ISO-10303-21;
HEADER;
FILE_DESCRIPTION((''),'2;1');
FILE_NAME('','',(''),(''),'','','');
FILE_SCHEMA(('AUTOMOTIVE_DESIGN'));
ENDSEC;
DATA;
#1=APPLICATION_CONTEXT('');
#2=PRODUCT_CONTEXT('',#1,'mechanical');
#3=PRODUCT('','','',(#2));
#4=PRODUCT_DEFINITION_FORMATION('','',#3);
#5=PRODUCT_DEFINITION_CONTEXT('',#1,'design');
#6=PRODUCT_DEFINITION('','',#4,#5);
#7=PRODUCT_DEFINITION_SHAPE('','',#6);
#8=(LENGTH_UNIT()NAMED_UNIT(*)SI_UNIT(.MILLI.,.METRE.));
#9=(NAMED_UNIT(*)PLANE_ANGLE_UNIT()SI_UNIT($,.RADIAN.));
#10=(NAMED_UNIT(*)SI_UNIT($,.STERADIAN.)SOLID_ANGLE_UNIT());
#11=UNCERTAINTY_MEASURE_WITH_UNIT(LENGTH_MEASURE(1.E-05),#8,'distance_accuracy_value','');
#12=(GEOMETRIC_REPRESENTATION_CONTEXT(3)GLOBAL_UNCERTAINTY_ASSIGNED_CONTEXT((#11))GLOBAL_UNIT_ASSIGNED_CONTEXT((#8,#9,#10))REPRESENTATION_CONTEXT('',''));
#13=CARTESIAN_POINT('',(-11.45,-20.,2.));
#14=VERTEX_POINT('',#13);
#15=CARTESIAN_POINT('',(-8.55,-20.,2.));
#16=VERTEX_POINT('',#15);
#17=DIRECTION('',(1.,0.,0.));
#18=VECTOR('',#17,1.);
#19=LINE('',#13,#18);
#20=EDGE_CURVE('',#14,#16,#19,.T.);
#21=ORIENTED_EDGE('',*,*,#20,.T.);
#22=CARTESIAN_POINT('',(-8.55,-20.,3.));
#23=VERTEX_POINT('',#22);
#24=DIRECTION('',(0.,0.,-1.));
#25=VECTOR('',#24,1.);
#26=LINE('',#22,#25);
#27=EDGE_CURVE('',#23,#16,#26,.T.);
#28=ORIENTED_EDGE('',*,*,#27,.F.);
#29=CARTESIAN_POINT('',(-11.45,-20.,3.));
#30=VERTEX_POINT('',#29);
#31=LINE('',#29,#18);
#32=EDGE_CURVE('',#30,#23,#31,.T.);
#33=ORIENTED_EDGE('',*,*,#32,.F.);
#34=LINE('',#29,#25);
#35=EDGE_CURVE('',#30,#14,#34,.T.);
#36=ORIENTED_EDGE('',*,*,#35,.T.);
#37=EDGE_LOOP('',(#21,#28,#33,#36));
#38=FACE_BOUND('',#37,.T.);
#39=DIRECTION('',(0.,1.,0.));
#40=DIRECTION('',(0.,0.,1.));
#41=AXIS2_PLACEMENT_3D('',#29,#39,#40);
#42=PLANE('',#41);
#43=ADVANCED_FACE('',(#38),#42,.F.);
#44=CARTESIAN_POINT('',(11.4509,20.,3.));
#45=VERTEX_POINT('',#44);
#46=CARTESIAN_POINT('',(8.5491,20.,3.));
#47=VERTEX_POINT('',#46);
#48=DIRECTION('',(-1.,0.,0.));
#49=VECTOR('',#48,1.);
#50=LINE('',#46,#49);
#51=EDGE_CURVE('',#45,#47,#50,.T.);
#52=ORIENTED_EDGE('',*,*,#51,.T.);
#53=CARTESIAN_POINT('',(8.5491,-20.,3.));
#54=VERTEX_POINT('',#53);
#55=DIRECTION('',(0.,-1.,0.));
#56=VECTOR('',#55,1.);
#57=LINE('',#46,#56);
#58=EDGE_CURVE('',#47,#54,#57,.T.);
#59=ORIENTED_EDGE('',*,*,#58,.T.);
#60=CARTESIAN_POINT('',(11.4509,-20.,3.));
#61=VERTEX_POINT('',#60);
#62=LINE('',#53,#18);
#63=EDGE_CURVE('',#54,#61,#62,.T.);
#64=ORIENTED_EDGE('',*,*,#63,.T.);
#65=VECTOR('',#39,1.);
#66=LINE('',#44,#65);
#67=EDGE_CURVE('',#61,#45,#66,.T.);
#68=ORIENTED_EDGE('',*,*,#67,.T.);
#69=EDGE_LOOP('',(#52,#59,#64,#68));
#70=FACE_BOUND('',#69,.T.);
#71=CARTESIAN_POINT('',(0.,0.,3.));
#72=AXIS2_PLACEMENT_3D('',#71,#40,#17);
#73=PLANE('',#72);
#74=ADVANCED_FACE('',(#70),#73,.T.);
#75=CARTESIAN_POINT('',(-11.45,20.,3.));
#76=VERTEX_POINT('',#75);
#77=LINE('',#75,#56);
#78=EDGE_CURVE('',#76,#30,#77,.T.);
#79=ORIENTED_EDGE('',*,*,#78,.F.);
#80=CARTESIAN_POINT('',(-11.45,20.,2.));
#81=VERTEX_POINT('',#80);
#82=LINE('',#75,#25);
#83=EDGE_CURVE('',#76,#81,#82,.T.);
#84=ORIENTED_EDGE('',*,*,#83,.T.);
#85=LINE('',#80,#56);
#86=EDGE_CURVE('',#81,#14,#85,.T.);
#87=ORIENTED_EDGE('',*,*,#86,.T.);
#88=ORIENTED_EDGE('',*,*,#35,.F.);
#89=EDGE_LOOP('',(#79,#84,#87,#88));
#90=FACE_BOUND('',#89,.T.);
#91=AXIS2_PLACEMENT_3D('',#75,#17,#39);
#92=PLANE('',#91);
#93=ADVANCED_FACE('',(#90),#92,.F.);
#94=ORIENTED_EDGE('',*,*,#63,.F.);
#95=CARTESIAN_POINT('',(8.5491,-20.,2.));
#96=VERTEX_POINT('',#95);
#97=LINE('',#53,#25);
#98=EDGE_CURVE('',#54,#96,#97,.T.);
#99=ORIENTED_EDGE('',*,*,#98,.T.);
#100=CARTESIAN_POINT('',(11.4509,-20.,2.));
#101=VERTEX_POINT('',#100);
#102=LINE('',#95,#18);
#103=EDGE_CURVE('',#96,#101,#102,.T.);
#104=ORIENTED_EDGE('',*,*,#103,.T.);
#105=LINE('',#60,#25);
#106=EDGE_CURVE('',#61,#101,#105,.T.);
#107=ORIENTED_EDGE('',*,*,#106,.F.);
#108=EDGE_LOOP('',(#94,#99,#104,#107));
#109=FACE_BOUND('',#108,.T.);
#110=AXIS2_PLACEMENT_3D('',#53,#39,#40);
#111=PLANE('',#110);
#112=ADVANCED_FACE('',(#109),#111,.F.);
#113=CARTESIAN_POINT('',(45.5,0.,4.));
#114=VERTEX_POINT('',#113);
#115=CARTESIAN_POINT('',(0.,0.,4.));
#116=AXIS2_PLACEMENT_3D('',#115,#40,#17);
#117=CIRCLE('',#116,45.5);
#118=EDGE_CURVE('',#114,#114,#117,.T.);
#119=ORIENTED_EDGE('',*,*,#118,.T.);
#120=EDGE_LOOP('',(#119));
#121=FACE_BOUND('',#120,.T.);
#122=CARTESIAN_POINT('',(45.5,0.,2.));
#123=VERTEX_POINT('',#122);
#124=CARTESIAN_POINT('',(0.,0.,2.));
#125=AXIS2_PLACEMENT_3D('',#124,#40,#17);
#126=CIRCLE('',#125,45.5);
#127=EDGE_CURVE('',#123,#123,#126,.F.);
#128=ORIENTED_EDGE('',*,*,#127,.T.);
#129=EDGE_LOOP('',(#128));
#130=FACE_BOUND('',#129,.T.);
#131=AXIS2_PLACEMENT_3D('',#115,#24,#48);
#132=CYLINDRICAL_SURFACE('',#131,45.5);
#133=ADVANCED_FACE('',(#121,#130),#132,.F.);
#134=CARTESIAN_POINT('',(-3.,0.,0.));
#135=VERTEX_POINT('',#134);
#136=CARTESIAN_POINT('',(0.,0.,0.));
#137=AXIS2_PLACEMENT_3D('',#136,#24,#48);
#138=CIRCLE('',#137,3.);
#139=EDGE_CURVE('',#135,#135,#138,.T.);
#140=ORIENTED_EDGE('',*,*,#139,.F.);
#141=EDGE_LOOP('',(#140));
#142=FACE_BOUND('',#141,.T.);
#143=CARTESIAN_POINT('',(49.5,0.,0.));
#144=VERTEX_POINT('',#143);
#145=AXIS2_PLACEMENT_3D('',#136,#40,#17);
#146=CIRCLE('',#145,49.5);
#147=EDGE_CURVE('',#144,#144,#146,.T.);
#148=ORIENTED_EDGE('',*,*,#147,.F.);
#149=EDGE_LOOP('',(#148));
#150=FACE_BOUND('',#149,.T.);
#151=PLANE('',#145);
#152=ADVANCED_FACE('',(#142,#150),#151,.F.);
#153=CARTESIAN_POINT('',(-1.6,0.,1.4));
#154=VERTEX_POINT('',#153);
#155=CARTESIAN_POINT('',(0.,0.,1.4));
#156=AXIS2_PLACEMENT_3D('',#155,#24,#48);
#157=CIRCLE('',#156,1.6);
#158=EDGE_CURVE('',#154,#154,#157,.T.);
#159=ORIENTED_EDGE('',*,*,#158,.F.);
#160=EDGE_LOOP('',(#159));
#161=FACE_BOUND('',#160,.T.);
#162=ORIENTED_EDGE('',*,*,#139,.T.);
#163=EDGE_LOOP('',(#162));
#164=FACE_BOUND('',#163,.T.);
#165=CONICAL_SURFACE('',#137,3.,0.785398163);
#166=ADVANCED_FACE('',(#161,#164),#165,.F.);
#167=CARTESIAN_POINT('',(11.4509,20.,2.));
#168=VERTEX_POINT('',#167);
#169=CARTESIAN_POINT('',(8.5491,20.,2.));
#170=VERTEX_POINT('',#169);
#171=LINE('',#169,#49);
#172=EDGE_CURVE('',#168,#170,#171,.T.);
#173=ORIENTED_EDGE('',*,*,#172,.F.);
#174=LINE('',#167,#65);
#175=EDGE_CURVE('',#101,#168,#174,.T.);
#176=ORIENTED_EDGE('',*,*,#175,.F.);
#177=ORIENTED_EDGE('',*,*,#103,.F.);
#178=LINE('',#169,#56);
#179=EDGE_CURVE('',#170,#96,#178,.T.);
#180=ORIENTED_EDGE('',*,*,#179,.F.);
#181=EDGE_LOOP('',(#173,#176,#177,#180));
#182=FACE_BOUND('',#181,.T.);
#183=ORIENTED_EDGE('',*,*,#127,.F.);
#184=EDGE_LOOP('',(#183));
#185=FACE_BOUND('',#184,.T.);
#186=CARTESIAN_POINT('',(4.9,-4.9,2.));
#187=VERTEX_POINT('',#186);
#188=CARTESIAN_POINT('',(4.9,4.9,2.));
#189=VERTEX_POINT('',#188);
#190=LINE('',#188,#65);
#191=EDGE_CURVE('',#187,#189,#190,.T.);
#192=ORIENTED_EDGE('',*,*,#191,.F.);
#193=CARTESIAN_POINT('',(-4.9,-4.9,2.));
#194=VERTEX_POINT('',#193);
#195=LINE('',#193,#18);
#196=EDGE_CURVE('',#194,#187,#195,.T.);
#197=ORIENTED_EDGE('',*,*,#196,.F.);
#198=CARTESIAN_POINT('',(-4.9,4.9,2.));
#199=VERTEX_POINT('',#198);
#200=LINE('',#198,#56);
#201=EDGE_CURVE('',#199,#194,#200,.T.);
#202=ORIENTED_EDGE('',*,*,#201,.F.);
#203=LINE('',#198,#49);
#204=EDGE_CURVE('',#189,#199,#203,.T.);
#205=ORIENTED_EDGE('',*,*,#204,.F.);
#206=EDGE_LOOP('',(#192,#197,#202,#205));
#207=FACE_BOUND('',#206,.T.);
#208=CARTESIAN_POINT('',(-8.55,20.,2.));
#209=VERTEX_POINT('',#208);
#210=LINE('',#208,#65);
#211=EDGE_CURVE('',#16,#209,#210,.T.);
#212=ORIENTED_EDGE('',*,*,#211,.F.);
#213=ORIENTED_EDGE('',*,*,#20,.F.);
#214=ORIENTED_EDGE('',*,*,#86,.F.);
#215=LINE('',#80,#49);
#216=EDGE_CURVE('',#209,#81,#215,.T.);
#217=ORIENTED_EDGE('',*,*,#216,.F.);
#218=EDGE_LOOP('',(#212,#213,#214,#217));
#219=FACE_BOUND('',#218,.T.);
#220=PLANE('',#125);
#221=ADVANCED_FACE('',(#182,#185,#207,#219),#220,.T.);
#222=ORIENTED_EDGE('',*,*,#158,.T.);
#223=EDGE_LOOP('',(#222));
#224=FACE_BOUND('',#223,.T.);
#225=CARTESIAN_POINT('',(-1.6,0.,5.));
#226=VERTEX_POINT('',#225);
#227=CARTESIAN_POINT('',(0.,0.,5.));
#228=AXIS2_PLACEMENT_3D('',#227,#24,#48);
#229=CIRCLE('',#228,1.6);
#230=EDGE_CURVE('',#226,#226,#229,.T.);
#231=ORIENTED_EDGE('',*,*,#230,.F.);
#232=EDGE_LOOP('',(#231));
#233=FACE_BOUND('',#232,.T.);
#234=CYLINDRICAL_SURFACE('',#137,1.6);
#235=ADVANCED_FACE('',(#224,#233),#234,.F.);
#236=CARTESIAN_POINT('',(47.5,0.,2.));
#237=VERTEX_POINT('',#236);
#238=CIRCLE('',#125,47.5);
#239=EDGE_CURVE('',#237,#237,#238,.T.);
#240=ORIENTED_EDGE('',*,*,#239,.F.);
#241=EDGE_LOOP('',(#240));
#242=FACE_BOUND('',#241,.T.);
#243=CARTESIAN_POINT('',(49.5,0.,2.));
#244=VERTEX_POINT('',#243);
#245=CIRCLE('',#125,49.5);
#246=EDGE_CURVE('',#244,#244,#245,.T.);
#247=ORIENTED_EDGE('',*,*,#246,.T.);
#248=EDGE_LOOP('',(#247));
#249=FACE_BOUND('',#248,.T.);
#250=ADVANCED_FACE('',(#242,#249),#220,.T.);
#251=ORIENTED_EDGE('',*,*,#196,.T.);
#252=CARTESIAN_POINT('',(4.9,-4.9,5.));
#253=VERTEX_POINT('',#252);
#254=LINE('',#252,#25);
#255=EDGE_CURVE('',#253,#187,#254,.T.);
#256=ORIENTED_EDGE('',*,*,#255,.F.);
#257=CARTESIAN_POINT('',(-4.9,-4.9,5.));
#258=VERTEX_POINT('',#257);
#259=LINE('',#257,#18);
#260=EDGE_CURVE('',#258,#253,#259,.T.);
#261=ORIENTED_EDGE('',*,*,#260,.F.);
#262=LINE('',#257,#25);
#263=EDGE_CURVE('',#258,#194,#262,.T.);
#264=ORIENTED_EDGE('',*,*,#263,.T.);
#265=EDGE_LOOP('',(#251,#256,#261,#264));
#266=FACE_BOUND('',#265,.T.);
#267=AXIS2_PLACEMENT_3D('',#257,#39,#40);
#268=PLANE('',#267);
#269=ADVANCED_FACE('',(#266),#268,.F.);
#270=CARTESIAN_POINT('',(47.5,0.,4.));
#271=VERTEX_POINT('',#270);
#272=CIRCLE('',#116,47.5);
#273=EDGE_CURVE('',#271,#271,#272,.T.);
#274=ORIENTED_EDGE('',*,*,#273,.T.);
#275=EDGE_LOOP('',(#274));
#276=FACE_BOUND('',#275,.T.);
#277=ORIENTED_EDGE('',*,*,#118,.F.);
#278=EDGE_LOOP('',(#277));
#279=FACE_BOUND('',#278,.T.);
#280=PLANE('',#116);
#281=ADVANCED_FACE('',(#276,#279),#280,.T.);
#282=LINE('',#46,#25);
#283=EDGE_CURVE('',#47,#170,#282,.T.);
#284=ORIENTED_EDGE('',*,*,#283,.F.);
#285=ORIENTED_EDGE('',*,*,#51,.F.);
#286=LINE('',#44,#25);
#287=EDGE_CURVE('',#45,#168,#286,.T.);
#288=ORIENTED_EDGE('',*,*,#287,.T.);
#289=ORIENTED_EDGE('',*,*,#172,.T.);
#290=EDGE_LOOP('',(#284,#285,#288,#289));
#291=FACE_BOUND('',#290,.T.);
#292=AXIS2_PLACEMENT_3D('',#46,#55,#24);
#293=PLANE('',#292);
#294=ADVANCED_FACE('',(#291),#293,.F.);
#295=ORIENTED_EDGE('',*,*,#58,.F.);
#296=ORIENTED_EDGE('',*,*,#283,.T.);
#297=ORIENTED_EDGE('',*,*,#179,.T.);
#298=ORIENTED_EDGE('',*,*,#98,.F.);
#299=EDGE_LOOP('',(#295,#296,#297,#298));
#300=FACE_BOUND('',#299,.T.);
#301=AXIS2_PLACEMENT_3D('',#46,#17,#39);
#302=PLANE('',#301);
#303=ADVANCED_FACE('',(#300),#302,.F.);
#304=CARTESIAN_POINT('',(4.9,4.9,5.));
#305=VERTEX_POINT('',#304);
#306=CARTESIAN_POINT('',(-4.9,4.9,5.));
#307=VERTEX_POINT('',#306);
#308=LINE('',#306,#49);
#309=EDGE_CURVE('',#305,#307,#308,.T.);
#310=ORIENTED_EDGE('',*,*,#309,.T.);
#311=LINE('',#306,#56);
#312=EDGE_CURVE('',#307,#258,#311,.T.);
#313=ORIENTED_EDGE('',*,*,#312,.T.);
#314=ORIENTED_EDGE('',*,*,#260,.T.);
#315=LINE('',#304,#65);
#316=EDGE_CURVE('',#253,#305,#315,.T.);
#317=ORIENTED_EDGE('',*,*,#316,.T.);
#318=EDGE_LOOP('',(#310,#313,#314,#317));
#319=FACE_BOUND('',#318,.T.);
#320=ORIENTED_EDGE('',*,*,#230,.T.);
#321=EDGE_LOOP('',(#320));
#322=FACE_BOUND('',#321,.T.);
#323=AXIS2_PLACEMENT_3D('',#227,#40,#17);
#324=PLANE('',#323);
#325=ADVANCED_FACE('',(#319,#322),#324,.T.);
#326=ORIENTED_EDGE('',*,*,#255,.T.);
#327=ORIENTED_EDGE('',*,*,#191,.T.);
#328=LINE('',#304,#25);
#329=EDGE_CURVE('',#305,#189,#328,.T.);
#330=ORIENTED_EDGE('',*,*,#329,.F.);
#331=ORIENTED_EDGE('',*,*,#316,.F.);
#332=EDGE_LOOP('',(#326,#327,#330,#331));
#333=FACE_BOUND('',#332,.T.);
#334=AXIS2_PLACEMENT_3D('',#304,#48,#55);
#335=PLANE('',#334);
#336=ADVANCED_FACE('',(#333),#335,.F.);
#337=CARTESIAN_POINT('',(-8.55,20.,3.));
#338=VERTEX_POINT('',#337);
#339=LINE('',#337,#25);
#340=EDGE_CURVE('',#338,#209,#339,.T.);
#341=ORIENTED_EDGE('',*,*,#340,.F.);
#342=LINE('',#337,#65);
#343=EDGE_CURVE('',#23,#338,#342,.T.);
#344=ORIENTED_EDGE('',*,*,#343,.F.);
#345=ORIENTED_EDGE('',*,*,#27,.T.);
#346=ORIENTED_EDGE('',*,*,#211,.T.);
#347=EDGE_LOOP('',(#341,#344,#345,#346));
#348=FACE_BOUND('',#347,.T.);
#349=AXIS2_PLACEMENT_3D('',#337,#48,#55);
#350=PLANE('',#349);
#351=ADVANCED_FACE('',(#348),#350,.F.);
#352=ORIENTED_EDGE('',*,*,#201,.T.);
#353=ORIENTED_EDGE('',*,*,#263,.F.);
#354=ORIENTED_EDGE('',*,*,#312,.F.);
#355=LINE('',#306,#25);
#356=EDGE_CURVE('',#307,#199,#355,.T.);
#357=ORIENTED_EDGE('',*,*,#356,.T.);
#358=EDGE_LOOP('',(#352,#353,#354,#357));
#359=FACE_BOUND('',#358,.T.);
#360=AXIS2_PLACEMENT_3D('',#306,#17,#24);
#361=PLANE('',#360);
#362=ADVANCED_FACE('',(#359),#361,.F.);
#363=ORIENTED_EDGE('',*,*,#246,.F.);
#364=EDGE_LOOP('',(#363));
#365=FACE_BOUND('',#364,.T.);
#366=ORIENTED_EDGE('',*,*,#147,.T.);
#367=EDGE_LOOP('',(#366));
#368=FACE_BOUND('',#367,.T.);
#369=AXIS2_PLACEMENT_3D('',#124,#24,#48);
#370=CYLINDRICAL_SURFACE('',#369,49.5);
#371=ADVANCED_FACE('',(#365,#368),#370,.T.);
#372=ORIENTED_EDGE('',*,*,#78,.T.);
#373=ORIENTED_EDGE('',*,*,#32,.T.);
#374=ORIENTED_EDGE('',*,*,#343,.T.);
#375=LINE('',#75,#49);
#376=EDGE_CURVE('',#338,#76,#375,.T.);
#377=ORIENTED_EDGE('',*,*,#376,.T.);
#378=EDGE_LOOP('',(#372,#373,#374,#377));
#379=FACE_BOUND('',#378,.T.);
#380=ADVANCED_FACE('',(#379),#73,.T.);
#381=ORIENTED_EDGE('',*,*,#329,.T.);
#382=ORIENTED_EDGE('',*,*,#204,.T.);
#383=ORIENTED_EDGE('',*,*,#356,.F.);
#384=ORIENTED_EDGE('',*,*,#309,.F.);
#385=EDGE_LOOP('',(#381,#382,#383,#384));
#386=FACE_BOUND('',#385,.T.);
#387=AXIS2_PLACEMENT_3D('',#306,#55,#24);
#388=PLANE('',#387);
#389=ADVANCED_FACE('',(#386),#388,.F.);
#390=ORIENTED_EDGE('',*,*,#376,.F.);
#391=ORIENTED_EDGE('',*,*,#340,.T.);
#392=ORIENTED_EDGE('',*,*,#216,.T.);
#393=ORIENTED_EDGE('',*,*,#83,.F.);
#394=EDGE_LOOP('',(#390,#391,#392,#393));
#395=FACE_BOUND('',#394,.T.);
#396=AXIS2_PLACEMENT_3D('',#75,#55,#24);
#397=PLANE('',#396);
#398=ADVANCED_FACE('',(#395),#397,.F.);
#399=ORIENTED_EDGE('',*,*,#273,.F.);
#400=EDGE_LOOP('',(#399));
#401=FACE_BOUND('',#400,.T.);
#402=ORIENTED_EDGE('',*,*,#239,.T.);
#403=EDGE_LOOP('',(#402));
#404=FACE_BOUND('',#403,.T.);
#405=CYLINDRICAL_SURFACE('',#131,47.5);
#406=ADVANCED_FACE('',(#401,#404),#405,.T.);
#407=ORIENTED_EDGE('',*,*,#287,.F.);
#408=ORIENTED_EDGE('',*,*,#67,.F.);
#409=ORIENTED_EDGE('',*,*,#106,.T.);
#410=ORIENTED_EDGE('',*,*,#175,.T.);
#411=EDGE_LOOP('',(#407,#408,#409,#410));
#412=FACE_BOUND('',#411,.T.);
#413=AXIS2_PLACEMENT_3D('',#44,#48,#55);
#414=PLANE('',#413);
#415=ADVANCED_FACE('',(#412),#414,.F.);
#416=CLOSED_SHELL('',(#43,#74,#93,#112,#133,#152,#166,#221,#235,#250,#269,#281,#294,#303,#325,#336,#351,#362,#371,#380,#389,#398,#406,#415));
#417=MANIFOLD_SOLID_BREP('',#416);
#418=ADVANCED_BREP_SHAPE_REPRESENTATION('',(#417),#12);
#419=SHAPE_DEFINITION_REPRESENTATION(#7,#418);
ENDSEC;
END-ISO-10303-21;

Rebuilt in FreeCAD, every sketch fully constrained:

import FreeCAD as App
import Part
import Sketcher
Q = App.Units.Quantity


def add_polygon(sketch, points):
    """Adds a closed chain of lines whose ends are joined by coincident constraints."""
    first, n = sketch.GeometryCount, len(points)
    for a, b in zip(points, points[1:] + points[:1]):
        sketch.addGeometry(Part.LineSegment(App.Vector(*a, 0), App.Vector(*b, 0)), False)
    for i in range(n):
        sketch.addConstraint(Sketcher.Constraint("Coincident", first + i, 2, first + (i + 1) % n, 1))

doc = App.newDocument("Part")
body = doc.addObject("PartDesign::Body", "Body")

# Sketch on XY plane
sketch1 = body.newObject("Sketcher::SketchObject", "Sketch")
sketch1.AttachmentSupport = (doc.getObject("XY_Plane"), [""])
sketch1.MapMode = "FlatFace"
sketch1.addGeometry(Part.Circle(App.Vector(0, 0, 0), App.Vector(0, 0, 1), 49.5), False)
sketch1.addConstraint([
    Sketcher.Constraint("Coincident", 0, 3, -1, 1),
    Sketcher.Constraint("Diameter", 0, Q("99 mm")),
])
pad1 = body.newObject("PartDesign::Pad", "Pad")
pad1.Profile = sketch1
pad1.Length = 2

# Sketch on XY plane
sketch2 = body.newObject("Sketcher::SketchObject", "Sketch001")
sketch2.AttachmentSupport = (doc.getObject("XY_Plane"), [""])
sketch2.MapMode = "FlatFace"
sketch2.AttachmentOffset = App.Placement(App.Vector(0, 0, 2), App.Rotation())
add_polygon(sketch2, [(-11.45, 20), (-11.45, -20), (-8.55, -20), (-8.55, 20)])  # lines 0-3
add_polygon(sketch2, [(8.5491, 20), (8.5491, -20), (11.4509, -20), (11.4509, 20)])  # lines 4-7
sketch2.addConstraint([
    Sketcher.Constraint("Vertical", 0),
    Sketcher.Constraint("Horizontal", 1),
    Sketcher.Constraint("Vertical", 2),
    Sketcher.Constraint("Horizontal", 3),
    Sketcher.Constraint("Vertical", 4),
    Sketcher.Constraint("Horizontal", 5),
    Sketcher.Constraint("Vertical", 6),
    Sketcher.Constraint("Horizontal", 7),
    Sketcher.Constraint("Horizontal", 1, 2, 4, 2),
    Sketcher.Constraint("Horizontal", 3, 2, 6, 2),
    Sketcher.Constraint("DistanceY", 0, 2, 0, 1, Q("40 mm")),
    Sketcher.Constraint("DistanceX", 1, 1, 1, 2, Q("2.9 mm")),
    Sketcher.Constraint("DistanceY", 0, 2, -1, 1, Q("20 mm")),
    Sketcher.Constraint("DistanceX", 0, 2, -1, 1, Q("11.45 mm")),
    Sketcher.Constraint("DistanceX", 5, 1, 5, 2, Q("2.9018 mm")),
    Sketcher.Constraint("DistanceX", -1, 1, 4, 2, Q("8.5491 mm")),
])
pad2 = body.newObject("PartDesign::Pad", "Pad001")
pad2.Profile = sketch2
pad2.Length = 1

# Sketch on XY plane
sketch3 = body.newObject("Sketcher::SketchObject", "Sketch002")
sketch3.AttachmentSupport = (doc.getObject("XY_Plane"), [""])
sketch3.MapMode = "FlatFace"
sketch3.AttachmentOffset = App.Placement(App.Vector(0, 0, 2), App.Rotation())
add_polygon(sketch3, [(-4.9, 4.9), (-4.9, -4.9), (4.9, -4.9), (4.9, 4.9)])  # lines 0-3
sketch3.addConstraint([
    Sketcher.Constraint("Vertical", 0),
    Sketcher.Constraint("Horizontal", 1),
    Sketcher.Constraint("Vertical", 2),
    Sketcher.Constraint("Horizontal", 3),
    Sketcher.Constraint("Symmetric", 0, 2, 2, 2, -1, 1),
    Sketcher.Constraint("Equal", 3, 0),
    Sketcher.Constraint("DistanceX", 1, 1, 1, 2, Q("9.8 mm")),
])
pad3 = body.newObject("PartDesign::Pad", "Pad002")
pad3.Profile = sketch3
pad3.Length = 3

# Sketch on XY plane
sketch4 = body.newObject("Sketcher::SketchObject", "Sketch003")
sketch4.AttachmentSupport = (doc.getObject("XY_Plane"), [""])
sketch4.MapMode = "FlatFace"
sketch4.addGeometry(Part.Circle(App.Vector(0, 0, 0), App.Vector(0, 0, 1), 1.6), False)
sketch4.addConstraint([
    Sketcher.Constraint("Coincident", 0, 3, -1, 1),
    Sketcher.Constraint("Diameter", 0, Q("3.2 mm")),
])
doc.recompute()
hole = body.newObject("PartDesign::Hole", "Hole")
hole.Profile = sketch4
hole.ThreadType = "None"
hole.Diameter = 3.2
hole.DepthType = "ThroughAll"
hole.HoleCutType = "Countersink"
hole.HoleCutDiameter = 6
hole.HoleCutCountersinkAngle = 90
hole.Reversed = True

# Sketch on XY plane
sketch5 = body.newObject("Sketcher::SketchObject", "Sketch004")
sketch5.AttachmentSupport = (doc.getObject("XY_Plane"), [""])
sketch5.MapMode = "FlatFace"
sketch5.AttachmentOffset = App.Placement(App.Vector(0, 0, 2), App.Rotation())
sketch5.addGeometry([
    Part.Circle(App.Vector(0, 0, 0), App.Vector(0, 0, 1), 47.5),
    Part.Circle(App.Vector(0, 0, 0), App.Vector(0, 0, 1), 45.5),
], False)
sketch5.addConstraint([
    Sketcher.Constraint("Coincident", 0, 3, -1, 1),
    Sketcher.Constraint("Coincident", 1, 3, -1, 1),
    Sketcher.Constraint("Diameter", 0, Q("95 mm")),
    Sketcher.Constraint("Diameter", 1, Q("91 mm")),
])
pad4 = body.newObject("PartDesign::Pad", "Pad003")
pad4.Profile = sketch5
pad4.Length = 2

doc.recompute()
